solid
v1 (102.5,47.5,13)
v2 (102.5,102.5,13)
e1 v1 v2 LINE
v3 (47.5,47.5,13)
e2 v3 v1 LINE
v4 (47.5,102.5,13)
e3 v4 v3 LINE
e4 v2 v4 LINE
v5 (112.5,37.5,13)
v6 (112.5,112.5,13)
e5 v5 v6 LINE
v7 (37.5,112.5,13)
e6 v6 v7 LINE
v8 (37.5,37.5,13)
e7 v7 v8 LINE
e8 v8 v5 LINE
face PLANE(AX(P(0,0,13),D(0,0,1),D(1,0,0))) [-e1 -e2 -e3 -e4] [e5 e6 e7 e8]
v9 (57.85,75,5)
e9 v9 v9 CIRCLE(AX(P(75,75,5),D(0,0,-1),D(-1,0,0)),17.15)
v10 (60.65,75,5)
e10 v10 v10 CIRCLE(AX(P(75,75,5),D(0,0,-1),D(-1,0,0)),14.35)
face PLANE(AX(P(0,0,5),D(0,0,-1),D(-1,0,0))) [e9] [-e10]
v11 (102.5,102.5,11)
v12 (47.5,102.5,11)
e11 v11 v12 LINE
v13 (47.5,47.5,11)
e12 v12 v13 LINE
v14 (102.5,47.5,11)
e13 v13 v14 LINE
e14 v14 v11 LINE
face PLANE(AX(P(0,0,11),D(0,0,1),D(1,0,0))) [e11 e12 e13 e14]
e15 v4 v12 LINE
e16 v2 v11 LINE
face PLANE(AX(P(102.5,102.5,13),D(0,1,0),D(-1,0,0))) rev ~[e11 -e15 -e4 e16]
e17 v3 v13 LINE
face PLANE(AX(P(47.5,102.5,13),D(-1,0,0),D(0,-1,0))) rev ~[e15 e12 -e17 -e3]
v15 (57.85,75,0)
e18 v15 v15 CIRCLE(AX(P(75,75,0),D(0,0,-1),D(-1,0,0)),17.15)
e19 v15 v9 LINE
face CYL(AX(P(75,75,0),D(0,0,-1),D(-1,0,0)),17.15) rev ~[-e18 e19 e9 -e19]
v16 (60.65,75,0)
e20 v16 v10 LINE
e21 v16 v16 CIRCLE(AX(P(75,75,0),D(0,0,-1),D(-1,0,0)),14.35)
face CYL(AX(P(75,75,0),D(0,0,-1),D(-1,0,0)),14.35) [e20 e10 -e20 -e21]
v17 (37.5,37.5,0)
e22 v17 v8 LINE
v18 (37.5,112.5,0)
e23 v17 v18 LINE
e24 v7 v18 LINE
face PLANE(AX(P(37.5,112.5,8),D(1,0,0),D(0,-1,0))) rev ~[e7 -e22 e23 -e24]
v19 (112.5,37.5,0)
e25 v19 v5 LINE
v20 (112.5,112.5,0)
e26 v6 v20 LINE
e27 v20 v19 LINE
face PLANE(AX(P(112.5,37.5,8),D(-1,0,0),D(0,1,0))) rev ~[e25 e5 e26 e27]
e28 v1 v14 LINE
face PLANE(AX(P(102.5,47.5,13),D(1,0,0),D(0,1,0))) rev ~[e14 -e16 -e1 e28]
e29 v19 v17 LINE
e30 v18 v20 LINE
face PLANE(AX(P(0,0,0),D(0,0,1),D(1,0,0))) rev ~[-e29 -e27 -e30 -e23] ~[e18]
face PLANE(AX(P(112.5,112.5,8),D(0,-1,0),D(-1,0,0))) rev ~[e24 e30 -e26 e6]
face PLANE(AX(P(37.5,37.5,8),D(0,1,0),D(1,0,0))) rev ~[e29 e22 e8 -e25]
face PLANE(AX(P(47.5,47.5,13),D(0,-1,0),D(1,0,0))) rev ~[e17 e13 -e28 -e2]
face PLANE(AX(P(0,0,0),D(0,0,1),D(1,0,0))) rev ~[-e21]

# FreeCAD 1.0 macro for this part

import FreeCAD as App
import Part
import Sketcher
from FreeCAD import Vector
Q = App.Units.Quantity

doc = App.newDocument("Part")
body = doc.addObject("PartDesign::Body", "Body")

sketch1 = body.newObject("Sketcher::SketchObject", "Sketch")
sketch1.AttachmentSupport = (doc.getObject("XY_Plane"), [""])
sketch1.MapMode = "FlatFace"
sketch1.addGeometry(Part.LineSegment(Vector(0, 150, 0), Vector(0, 0, 0)), False)
sketch1.addGeometry(Part.LineSegment(Vector(0, 0, 0), Vector(150, 0, 0)), False)
sketch1.addGeometry(Part.LineSegment(Vector(150, 0, 0), Vector(150, 150, 0)), False)
sketch1.addGeometry(Part.LineSegment(Vector(150, 150, 0), Vector(0, 150, 0)), False)
sketch1.addConstraint(Sketcher.Constraint("Coincident", 0, 2, 1, 1))
sketch1.addConstraint(Sketcher.Constraint("Coincident", 1, 2, 2, 1))
sketch1.addConstraint(Sketcher.Constraint("Coincident", 2, 2, 3, 1))
sketch1.addConstraint(Sketcher.Constraint("Coincident", 3, 2, 0, 1))
sketch1.addConstraint(Sketcher.Constraint("Vertical", 0))
sketch1.addConstraint(Sketcher.Constraint("Horizontal", 1))
sketch1.addConstraint(Sketcher.Constraint("Vertical", 2))
sketch1.addConstraint(Sketcher.Constraint("Horizontal", 3))
sketch1.addConstraint(Sketcher.Constraint("Coincident", 0, 2, -1, 1))
sketch1.addConstraint(Sketcher.Constraint("Equal", 3, 0))
sketch1.addConstraint(Sketcher.Constraint("DistanceX", 1, 1, 1, 2, Q("150 mm")))
pad1 = body.newObject("PartDesign::Pad", "Pad")
pad1.Profile = sketch1
pad1.Length = 10

sketch2 = body.newObject("Sketcher::SketchObject", "Sketch001")
sketch2.AttachmentSupport = (doc.getObject("XY_Plane"), [""])
sketch2.MapMode = "FlatFace"
sketch2.AttachmentOffset = App.Placement(Vector(0, 0, 10), App.Rotation())
sketch2.addGeometry(Part.LineSegment(Vector(10, 140, 0), Vector(10, 10, 0)), False)
sketch2.addGeometry(Part.LineSegment(Vector(10, 10, 0), Vector(140, 10, 0)), False)
sketch2.addGeometry(Part.LineSegment(Vector(140, 10, 0), Vector(140, 140, 0)), False)
sketch2.addGeometry(Part.LineSegment(Vector(140, 140, 0), Vector(10, 140, 0)), False)
sketch2.addConstraint(Sketcher.Constraint("Coincident", 0, 2, 1, 1))
sketch2.addConstraint(Sketcher.Constraint("Coincident", 1, 2, 2, 1))
sketch2.addConstraint(Sketcher.Constraint("Coincident", 2, 2, 3, 1))
sketch2.addConstraint(Sketcher.Constraint("Coincident", 3, 2, 0, 1))
sketch2.addConstraint(Sketcher.Constraint("Vertical", 0))
sketch2.addConstraint(Sketcher.Constraint("Horizontal", 1))
sketch2.addConstraint(Sketcher.Constraint("Vertical", 2))
sketch2.addConstraint(Sketcher.Constraint("Horizontal", 3))
sketch2.addConstraint(Sketcher.Constraint("Equal", 3, 0))
sketch2.addConstraint(Sketcher.Constraint("DistanceX", 1, 1, 1, 2, Q("130 mm")))
sketch2.addConstraint(Sketcher.Constraint("DistanceX", -1, 1, 0, 2, Q("10 mm")))
sketch2.addConstraint(Sketcher.Constraint("DistanceY", -1, 1, 0, 2, Q("10 mm")))
pocket1 = body.newObject("PartDesign::Pocket", "Pocket")
pocket1.Profile = sketch2
pocket1.Length = 2

sketch3 = body.newObject("Sketcher::SketchObject", "Sketch002")
sketch3.AttachmentSupport = (doc.getObject("XY_Plane"), [""])
sketch3.MapMode = "FlatFace"
sketch3.addGeometry(Part.Circle(Vector(75, 75, 0), Vector(0, 0, 1), 17), False)
sketch3.addGeometry(Part.Circle(Vector(75, 75, 0), Vector(0, 0, 1), 14), False)
sketch3.addGeometry(Part.LineSegment(Vector(148, 8, 0), Vector(148, 2, 0)), False)
sketch3.addGeometry(Part.LineSegment(Vector(148, 2, 0), Vector(142, 2, 0)), False)
sketch3.addGeometry(Part.LineSegment(Vector(142, 2, 0), Vector(142, 8, 0)), False)
sketch3.addGeometry(Part.LineSegment(Vector(142, 8, 0), Vector(148, 8, 0)), False)
sketch3.addGeometry(Part.LineSegment(Vector(8, 2, 0), Vector(2, 2, 0)), False)
sketch3.addGeometry(Part.LineSegment(Vector(2, 2, 0), Vector(2, 8, 0)), False)
sketch3.addGeometry(Part.LineSegment(Vector(2, 8, 0), Vector(8, 8, 0)), False)
sketch3.addGeometry(Part.LineSegment(Vector(8, 8, 0), Vector(8, 2, 0)), False)
sketch3.addGeometry(Part.LineSegment(Vector(142, 148, 0), Vector(148, 148, 0)), False)
sketch3.addGeometry(Part.LineSegment(Vector(148, 148, 0), Vector(148, 142, 0)), False)
sketch3.addGeometry(Part.LineSegment(Vector(148, 142, 0), Vector(142, 142, 0)), False)
sketch3.addGeometry(Part.LineSegment(Vector(142, 142, 0), Vector(142, 148, 0)), False)
sketch3.addGeometry(Part.LineSegment(Vector(2, 142, 0), Vector(2, 148, 0)), False)
sketch3.addGeometry(Part.LineSegment(Vector(2, 148, 0), Vector(8, 148, 0)), False)
sketch3.addGeometry(Part.LineSegment(Vector(8, 148, 0), Vector(8, 142, 0)), False)
sketch3.addGeometry(Part.LineSegment(Vector(8, 142, 0), Vector(2, 142, 0)), False)
sketch3.addConstraint(Sketcher.Constraint("Coincident", 2, 2, 3, 1))
sketch3.addConstraint(Sketcher.Constraint("Coincident", 3, 2, 4, 1))
sketch3.addConstraint(Sketcher.Constraint("Coincident", 4, 2, 5, 1))
sketch3.addConstraint(Sketcher.Constraint("Coincident", 5, 2, 2, 1))
sketch3.addConstraint(Sketcher.Constraint("Coincident", 6, 2, 7, 1))
sketch3.addConstraint(Sketcher.Constraint("Coincident", 7, 2, 8, 1))
sketch3.addConstraint(Sketcher.Constraint("Coincident", 8, 2, 9, 1))
sketch3.addConstraint(Sketcher.Constraint("Coincident", 9, 2, 6, 1))
sketch3.addConstraint(Sketcher.Constraint("Coincident", 10, 2, 11, 1))
sketch3.addConstraint(Sketcher.Constraint("Coincident", 11, 2, 12, 1))
sketch3.addConstraint(Sketcher.Constraint("Coincident", 12, 2, 13, 1))
sketch3.addConstraint(Sketcher.Constraint("Coincident", 13, 2, 10, 1))
sketch3.addConstraint(Sketcher.Constraint("Coincident", 14, 2, 15, 1))
sketch3.addConstraint(Sketcher.Constraint("Coincident", 15, 2, 16, 1))
sketch3.addConstraint(Sketcher.Constraint("Coincident", 16, 2, 17, 1))
sketch3.addConstraint(Sketcher.Constraint("Coincident", 17, 2, 14, 1))
sketch3.addConstraint(Sketcher.Constraint("Vertical", 2))
sketch3.addConstraint(Sketcher.Constraint("Horizontal", 3))
sketch3.addConstraint(Sketcher.Constraint("Vertical", 4))
sketch3.addConstraint(Sketcher.Constraint("Horizontal", 5))
sketch3.addConstraint(Sketcher.Constraint("Horizontal", 6))
sketch3.addConstraint(Sketcher.Constraint("Vertical", 7))
sketch3.addConstraint(Sketcher.Constraint("Horizontal", 8))
sketch3.addConstraint(Sketcher.Constraint("Vertical", 9))
sketch3.addConstraint(Sketcher.Constraint("Horizontal", 10))
sketch3.addConstraint(Sketcher.Constraint("Vertical", 11))
sketch3.addConstraint(Sketcher.Constraint("Horizontal", 12))
sketch3.addConstraint(Sketcher.Constraint("Vertical", 13))
sketch3.addConstraint(Sketcher.Constraint("Vertical", 14))
sketch3.addConstraint(Sketcher.Constraint("Horizontal", 15))
sketch3.addConstraint(Sketcher.Constraint("Vertical", 16))
sketch3.addConstraint(Sketcher.Constraint("Horizontal", 17))
sketch3.addConstraint(Sketcher.Constraint("Coincident", 1, 3, 0, 3))
sketch3.addConstraint(Sketcher.Constraint("Horizontal", 3, 2, 6, 2))
sketch3.addConstraint(Sketcher.Constraint("Horizontal", 5, 2, 7, 2))
sketch3.addConstraint(Sketcher.Constraint("Horizontal", 13, 2, 14, 2))
sketch3.addConstraint(Sketcher.Constraint("Horizontal", 12, 2, 16, 2))
sketch3.addConstraint(Sketcher.Constraint("Vertical", 5, 2, 10, 2))
sketch3.addConstraint(Sketcher.Constraint("Vertical", 4, 2, 12, 2))
sketch3.addConstraint(Sketcher.Constraint("Vertical", 7, 2, 14, 2))
sketch3.addConstraint(Sketcher.Constraint("Vertical", 9, 2, 15, 2))
sketch3.addConstraint(Sketcher.Constraint("Equal", 5, 6))
sketch3.addConstraint(Sketcher.Constraint("Equal", 17, 2))
sketch3.addConstraint(Sketcher.Constraint("Equal", 9, 11))
sketch3.addConstraint(Sketcher.Constraint("Diameter", 0, Q("34.3 mm")))
sketch3.addConstraint(Sketcher.Constraint("Diameter", 1, Q("28.7 mm")))
sketch3.addConstraint(Sketcher.Constraint("DistanceX", 3, 2, 3, 1, Q("5 mm")))
sketch3.addConstraint(Sketcher.Constraint("DistanceX", -1, 1, 0, 3, Q("75 mm")))
sketch3.addConstraint(Sketcher.Constraint("DistanceY", -1, 1, 0, 3, Q("75 mm")))
sketch3.addConstraint(Sketcher.Constraint("DistanceX", 6, 2, 3, 2, Q("140 mm")))
sketch3.addConstraint(Sketcher.Constraint("DistanceY", 5, 2, 10, 2, Q("140 mm")))
sketch3.addConstraint(Sketcher.Constraint("DistanceX", -1, 1, 2, 2, Q("147.5 mm")))
sketch3.addConstraint(Sketcher.Constraint("DistanceY", -1, 1, 2, 2, Q("2.5 mm")))
pocket2 = body.newObject("PartDesign::Pocket", "Pocket001")
pocket2.Profile = sketch3
pocket2.Length = 5
pocket2.Reversed = True

sketch4 = body.newObject("Sketcher::SketchObject", "Sketch003")
sketch4.AttachmentSupport = (doc.getObject("XY_Plane"), [""])
sketch4.MapMode = "FlatFace"
sketch4.AttachmentOffset = App.Placement(Vector(0, 0, 8), App.Rotation())
sketch4.addGeometry(Part.LineSegment(Vector(102, 102, 0), Vector(48, 102, 0)), False)
sketch4.addGeometry(Part.LineSegment(Vector(48, 102, 0), Vector(48, 48, 0)), False)
sketch4.addGeometry(Part.LineSegment(Vector(48, 48, 0), Vector(102, 48, 0)), False)
sketch4.addGeometry(Part.LineSegment(Vector(102, 48, 0), Vector(102, 102, 0)), False)
sketch4.addConstraint(Sketcher.Constraint("Coincident", 0, 2, 1, 1))
sketch4.addConstraint(Sketcher.Constraint("Coincident", 1, 2, 2, 1))
sketch4.addConstraint(Sketcher.Constraint("Coincident", 2, 2, 3, 1))
sketch4.addConstraint(Sketcher.Constraint("Coincident", 3, 2, 0, 1))
sketch4.addConstraint(Sketcher.Constraint("Horizontal", 0))
sketch4.addConstraint(Sketcher.Constraint("Vertical", 1))
sketch4.addConstraint(Sketcher.Constraint("Horizontal", 2))
sketch4.addConstraint(Sketcher.Constraint("Vertical", 3))
sketch4.addConstraint(Sketcher.Constraint("Equal", 2, 1))
sketch4.addConstraint(Sketcher.Constraint("DistanceX", 0, 2, 0, 1, Q("55 mm")))
sketch4.addConstraint(Sketcher.Constraint("DistanceX", -1, 1, 0, 2, Q("47.5 mm")))
sketch4.addConstraint(Sketcher.Constraint("DistanceY", -1, 1, 0, 2, Q("102.5 mm")))
pocket3 = body.newObject("PartDesign::Pocket", "Pocket002")
pocket3.Profile = sketch4
pocket3.Length = 2

sketch5 = body.newObject("Sketcher::SketchObject", "Sketch004")
sketch5.AttachmentSupport = (doc.getObject("XY_Plane"), [""])
sketch5.MapMode = "FlatFace"
sketch5.AttachmentOffset = App.Placement(Vector(0, 0, 10), App.Rotation())
sketch5.addGeometry(Part.LineSegment(Vector(0, 150, 0), Vector(0, 0, 0)), False)
sketch5.addGeometry(Part.LineSegment(Vector(0, 0, 0), Vector(150, 0, 0)), False)
sketch5.addGeometry(Part.LineSegment(Vector(150, 0, 0), Vector(150, 150, 0)), False)
sketch5.addGeometry(Part.LineSegment(Vector(150, 150, 0), Vector(0, 150, 0)), False)
sketch5.addGeometry(Part.LineSegment(Vector(38, 38, 0), Vector(38, 112, 0)), False)
sketch5.addGeometry(Part.LineSegment(Vector(38, 112, 0), Vector(112, 112, 0)), False)
sketch5.addGeometry(Part.LineSegment(Vector(112, 112, 0), Vector(112, 38, 0)), False)
sketch5.addGeometry(Part.LineSegment(Vector(112, 38, 0), Vector(38, 38, 0)), False)
sketch5.addConstraint(Sketcher.Constraint("Coincident", 0, 2, 1, 1))
sketch5.addConstraint(Sketcher.Constraint("Coincident", 1, 2, 2, 1))
sketch5.addConstraint(Sketcher.Constraint("Coincident", 2, 2, 3, 1))
sketch5.addConstraint(Sketcher.Constraint("Coincident", 3, 2, 0, 1))
sketch5.addConstraint(Sketcher.Constraint("Coincident", 4, 2, 5, 1))
sketch5.addConstraint(Sketcher.Constraint("Coincident", 5, 2, 6, 1))
sketch5.addConstraint(Sketcher.Constraint("Coincident", 6, 2, 7, 1))
sketch5.addConstraint(Sketcher.Constraint("Coincident", 7, 2, 4, 1))
sketch5.addConstraint(Sketcher.Constraint("Vertical", 0))
sketch5.addConstraint(Sketcher.Constraint("Horizontal", 1))
sketch5.addConstraint(Sketcher.Constraint("Vertical", 2))
sketch5.addConstraint(Sketcher.Constraint("Horizontal", 3))
sketch5.addConstraint(Sketcher.Constraint("Vertical", 4))
sketch5.addConstraint(Sketcher.Constraint("Horizontal", 5))
sketch5.addConstraint(Sketcher.Constraint("Vertical", 6))
sketch5.addConstraint(Sketcher.Constraint("Horizontal", 7))
sketch5.addConstraint(Sketcher.Constraint("Coincident", 0, 2, -1, 1))
sketch5.addConstraint(Sketcher.Constraint("Equal", 3, 0))
sketch5.addConstraint(Sketcher.Constraint("Equal", 7, 4))
sketch5.addConstraint(Sketcher.Constraint("DistanceX", 1, 1, 1, 2, Q("150 mm")))
sketch5.addConstraint(Sketcher.Constraint("DistanceX", 5, 1, 5, 2, Q("75 mm")))
sketch5.addConstraint(Sketcher.Constraint("DistanceX", -1, 1, 4, 2, Q("37.5 mm")))
sketch5.addConstraint(Sketcher.Constraint("DistanceY", -1, 1, 4, 2, Q("112.5 mm")))
pocket4 = body.newObject("PartDesign::Pocket", "Pocket003")
pocket4.Profile = sketch5
pocket4.Length = 10

sketch6 = body.newObject("Sketcher::SketchObject", "Sketch005")
sketch6.AttachmentSupport = (doc.getObject("XY_Plane"), [""])
sketch6.MapMode = "FlatFace"
sketch6.AttachmentOffset = App.Placement(Vector(0, 0, 6), App.Rotation())
sketch6.addGeometry(Part.LineSegment(Vector(48, 102, 0), Vector(48, 48, 0)), False)
sketch6.addGeometry(Part.LineSegment(Vector(48, 48, 0), Vector(102, 48, 0)), False)
sketch6.addGeometry(Part.LineSegment(Vector(102, 48, 0), Vector(102, 102, 0)), False)
sketch6.addGeometry(Part.LineSegment(Vector(102, 102, 0), Vector(48, 102, 0)), False)
sketch6.addConstraint(Sketcher.Constraint("Coincident", 0, 2, 1, 1))
sketch6.addConstraint(Sketcher.Constraint("Coincident", 1, 2, 2, 1))
sketch6.addConstraint(Sketcher.Constraint("Coincident", 2, 2, 3, 1))
sketch6.addConstraint(Sketcher.Constraint("Coincident", 3, 2, 0, 1))
sketch6.addConstraint(Sketcher.Constraint("Vertical", 0))
sketch6.addConstraint(Sketcher.Constraint("Horizontal", 1))
sketch6.addConstraint(Sketcher.Constraint("Vertical", 2))
sketch6.addConstraint(Sketcher.Constraint("Horizontal", 3))
sketch6.addConstraint(Sketcher.Constraint("Equal", 3, 0))
sketch6.addConstraint(Sketcher.Constraint("DistanceX", 1, 1, 1, 2, Q("55 mm")))
sketch6.addConstraint(Sketcher.Constraint("DistanceX", -1, 1, 0, 2, Q("47.5 mm")))
sketch6.addConstraint(Sketcher.Constraint("DistanceY", -1, 1, 0, 2, Q("47.5 mm")))
pad2 = body.newObject("PartDesign::Pad", "Pad001")
pad2.Profile = sketch6
pad2.Length = 2

sketch7 = body.newObject("Sketcher::SketchObject", "Sketch006")
sketch7.AttachmentSupport = (doc.getObject("XY_Plane"), [""])
sketch7.MapMode = "FlatFace"
sketch7.AttachmentOffset = App.Placement(Vector(0, 0, 8), App.Rotation())
sketch7.addGeometry(Part.LineSegment(Vector(38, 112, 0), Vector(38, 38, 0)), False)
sketch7.addGeometry(Part.LineSegment(Vector(38, 38, 0), Vector(112, 38, 0)), False)
sketch7.addGeometry(Part.LineSegment(Vector(112, 38, 0), Vector(112, 112, 0)), False)
sketch7.addGeometry(Part.LineSegment(Vector(112, 112, 0), Vector(38, 112, 0)), False)
sketch7.addConstraint(Sketcher.Constraint("Coincident", 0, 2, 1, 1))
sketch7.addConstraint(Sketcher.Constraint("Coincident", 1, 2, 2, 1))
sketch7.addConstraint(Sketcher.Constraint("Coincident", 2, 2, 3, 1))
sketch7.addConstraint(Sketcher.Constraint("Coincident", 3, 2, 0, 1))
sketch7.addConstraint(Sketcher.Constraint("Vertical", 0))
sketch7.addConstraint(Sketcher.Constraint("Horizontal", 1))
sketch7.addConstraint(Sketcher.Constraint("Vertical", 2))
sketch7.addConstraint(Sketcher.Constraint("Horizontal", 3))
sketch7.addConstraint(Sketcher.Constraint("Equal", 3, 0))
sketch7.addConstraint(Sketcher.Constraint("DistanceX", 1, 1, 1, 2, Q("75 mm")))
sketch7.addConstraint(Sketcher.Constraint("DistanceX", -1, 1, 0, 2, Q("37.5 mm")))
sketch7.addConstraint(Sketcher.Constraint("DistanceY", -1, 1, 0, 2, Q("37.5 mm")))
pad3 = body.newObject("PartDesign::Pad", "Pad002")
pad3.Profile = sketch7
pad3.Length = 5

sketch8 = body.newObject("Sketcher::SketchObject", "Sketch007")
sketch8.AttachmentSupport = (doc.getObject("XY_Plane"), [""])
sketch8.MapMode = "FlatFace"
sketch8.AttachmentOffset = App.Placement(Vector(0, 0, 13), App.Rotation())
sketch8.addGeometry(Part.LineSegment(Vector(48, 102, 0), Vector(48, 48, 0)), False)
sketch8.addGeometry(Part.LineSegment(Vector(48, 48, 0), Vector(102, 48, 0)), False)
sketch8.addGeometry(Part.LineSegment(Vector(102, 48, 0), Vector(102, 102, 0)), False)
sketch8.addGeometry(Part.LineSegment(Vector(102, 102, 0), Vector(48, 102, 0)), False)
sketch8.addConstraint(Sketcher.Constraint("Coincident", 0, 2, 1, 1))
sketch8.addConstraint(Sketcher.Constraint("Coincident", 1, 2, 2, 1))
sketch8.addConstraint(Sketcher.Constraint("Coincident", 2, 2, 3, 1))
sketch8.addConstraint(Sketcher.Constraint("Coincident", 3, 2, 0, 1))
sketch8.addConstraint(Sketcher.Constraint("Vertical", 0))
sketch8.addConstraint(Sketcher.Constraint("Horizontal", 1))
sketch8.addConstraint(Sketcher.Constraint("Vertical", 2))
sketch8.addConstraint(Sketcher.Constraint("Horizontal", 3))
sketch8.addConstraint(Sketcher.Constraint("Equal", 3, 0))
sketch8.addConstraint(Sketcher.Constraint("DistanceX", 1, 1, 1, 2, Q("55 mm")))
sketch8.addConstraint(Sketcher.Constraint("DistanceX", -1, 1, 0, 2, Q("47.5 mm")))
sketch8.addConstraint(Sketcher.Constraint("DistanceY", -1, 1, 0, 2, Q("47.5 mm")))
pocket5 = body.newObject("PartDesign::Pocket", "Pocket004")
pocket5.Profile = sketch8
pocket5.Length = 2

doc.recompute()
